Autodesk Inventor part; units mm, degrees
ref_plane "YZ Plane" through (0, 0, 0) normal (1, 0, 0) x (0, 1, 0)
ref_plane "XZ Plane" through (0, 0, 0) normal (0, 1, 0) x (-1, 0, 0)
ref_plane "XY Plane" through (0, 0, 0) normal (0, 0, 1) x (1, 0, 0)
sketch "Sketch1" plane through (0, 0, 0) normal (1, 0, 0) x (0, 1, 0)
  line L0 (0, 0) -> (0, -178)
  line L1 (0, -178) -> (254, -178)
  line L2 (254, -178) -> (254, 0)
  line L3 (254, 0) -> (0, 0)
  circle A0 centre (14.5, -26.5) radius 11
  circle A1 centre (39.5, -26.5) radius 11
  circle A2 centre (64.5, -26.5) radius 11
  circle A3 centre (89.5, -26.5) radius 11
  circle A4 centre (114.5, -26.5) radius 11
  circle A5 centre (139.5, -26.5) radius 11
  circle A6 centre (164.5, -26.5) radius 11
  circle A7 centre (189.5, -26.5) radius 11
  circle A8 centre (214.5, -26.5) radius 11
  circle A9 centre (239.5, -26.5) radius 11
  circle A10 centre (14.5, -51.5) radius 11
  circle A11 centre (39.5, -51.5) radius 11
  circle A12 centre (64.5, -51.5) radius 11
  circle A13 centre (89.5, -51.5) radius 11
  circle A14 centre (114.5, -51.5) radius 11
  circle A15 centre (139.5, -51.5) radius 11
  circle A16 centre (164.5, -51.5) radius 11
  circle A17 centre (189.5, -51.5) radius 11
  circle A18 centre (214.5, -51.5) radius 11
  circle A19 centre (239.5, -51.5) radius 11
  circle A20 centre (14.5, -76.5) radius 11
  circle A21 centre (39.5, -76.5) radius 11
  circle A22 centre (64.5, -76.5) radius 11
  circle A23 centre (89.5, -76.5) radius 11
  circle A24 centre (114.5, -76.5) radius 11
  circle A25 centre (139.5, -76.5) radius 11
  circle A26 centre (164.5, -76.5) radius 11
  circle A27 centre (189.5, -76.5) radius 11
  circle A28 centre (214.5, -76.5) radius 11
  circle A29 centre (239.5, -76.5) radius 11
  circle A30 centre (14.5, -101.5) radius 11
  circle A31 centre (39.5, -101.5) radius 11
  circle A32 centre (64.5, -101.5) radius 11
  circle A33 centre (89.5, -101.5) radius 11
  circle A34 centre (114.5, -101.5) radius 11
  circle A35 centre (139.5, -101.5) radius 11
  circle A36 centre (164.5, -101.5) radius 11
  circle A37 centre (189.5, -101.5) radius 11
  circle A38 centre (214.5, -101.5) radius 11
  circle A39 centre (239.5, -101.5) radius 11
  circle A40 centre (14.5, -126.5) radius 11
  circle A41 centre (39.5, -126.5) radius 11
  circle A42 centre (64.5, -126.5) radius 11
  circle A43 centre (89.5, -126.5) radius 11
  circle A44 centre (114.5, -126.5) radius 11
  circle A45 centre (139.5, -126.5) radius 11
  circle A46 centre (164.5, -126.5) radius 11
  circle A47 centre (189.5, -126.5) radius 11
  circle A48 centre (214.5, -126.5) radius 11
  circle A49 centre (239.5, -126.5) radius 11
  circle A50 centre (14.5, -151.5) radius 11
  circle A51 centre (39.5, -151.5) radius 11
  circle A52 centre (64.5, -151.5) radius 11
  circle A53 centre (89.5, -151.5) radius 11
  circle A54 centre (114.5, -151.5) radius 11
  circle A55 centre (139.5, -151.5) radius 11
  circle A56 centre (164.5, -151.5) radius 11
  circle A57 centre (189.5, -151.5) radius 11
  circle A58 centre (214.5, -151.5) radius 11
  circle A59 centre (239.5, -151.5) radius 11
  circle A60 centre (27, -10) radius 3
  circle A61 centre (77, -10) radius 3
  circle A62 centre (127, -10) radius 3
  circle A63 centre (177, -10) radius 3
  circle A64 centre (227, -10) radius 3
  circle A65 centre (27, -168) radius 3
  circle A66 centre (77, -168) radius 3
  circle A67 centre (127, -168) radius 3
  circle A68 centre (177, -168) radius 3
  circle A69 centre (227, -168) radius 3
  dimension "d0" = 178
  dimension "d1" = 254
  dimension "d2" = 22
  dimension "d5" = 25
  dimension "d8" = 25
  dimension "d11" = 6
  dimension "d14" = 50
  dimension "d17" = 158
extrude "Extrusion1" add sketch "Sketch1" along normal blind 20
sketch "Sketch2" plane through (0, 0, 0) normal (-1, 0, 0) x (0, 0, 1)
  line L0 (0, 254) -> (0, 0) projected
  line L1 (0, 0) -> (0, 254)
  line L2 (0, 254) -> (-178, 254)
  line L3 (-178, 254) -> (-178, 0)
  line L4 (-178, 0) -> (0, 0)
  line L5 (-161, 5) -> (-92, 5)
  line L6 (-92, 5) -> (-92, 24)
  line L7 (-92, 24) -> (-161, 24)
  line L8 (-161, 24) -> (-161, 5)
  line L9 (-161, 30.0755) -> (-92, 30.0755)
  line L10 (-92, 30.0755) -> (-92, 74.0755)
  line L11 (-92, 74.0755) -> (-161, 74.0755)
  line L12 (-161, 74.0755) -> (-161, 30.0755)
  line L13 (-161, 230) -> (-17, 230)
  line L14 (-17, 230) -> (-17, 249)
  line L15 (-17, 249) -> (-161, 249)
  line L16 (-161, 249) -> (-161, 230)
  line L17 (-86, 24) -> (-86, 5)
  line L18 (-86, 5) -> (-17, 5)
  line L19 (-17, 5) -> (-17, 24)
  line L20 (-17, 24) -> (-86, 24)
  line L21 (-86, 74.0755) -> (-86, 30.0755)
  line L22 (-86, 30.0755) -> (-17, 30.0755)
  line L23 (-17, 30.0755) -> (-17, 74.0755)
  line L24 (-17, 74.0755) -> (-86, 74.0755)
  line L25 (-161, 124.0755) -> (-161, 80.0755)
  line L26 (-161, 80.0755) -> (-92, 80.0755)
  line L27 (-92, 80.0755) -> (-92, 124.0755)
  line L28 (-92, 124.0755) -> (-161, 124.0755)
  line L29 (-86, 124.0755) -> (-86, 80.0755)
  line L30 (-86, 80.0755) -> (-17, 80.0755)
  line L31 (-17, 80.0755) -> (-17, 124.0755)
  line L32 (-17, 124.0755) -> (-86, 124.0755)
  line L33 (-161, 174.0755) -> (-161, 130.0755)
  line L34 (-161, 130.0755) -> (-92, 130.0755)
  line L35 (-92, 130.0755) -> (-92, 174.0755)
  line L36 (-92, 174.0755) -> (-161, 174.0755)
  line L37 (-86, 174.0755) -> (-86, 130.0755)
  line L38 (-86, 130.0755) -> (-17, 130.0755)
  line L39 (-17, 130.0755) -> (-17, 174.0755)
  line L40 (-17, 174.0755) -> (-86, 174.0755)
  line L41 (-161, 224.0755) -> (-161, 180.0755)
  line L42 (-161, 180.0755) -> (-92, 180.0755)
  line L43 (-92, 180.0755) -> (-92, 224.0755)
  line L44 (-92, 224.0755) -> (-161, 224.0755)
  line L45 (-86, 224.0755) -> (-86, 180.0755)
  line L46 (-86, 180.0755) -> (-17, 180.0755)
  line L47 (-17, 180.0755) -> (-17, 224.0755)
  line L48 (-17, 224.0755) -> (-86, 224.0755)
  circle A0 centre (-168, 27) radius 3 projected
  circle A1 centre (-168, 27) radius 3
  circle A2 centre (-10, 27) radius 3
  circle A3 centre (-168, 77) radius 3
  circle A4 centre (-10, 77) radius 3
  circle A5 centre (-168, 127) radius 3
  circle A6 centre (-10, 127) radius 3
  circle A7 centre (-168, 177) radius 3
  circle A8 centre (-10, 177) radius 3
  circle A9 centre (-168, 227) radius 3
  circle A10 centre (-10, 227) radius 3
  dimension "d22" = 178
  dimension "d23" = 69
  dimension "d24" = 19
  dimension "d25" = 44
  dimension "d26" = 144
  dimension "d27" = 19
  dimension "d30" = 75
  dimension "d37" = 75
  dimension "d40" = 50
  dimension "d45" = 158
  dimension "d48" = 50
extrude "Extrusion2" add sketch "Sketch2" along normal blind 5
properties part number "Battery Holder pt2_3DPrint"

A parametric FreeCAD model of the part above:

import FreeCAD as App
import Part
import Sketcher

V = App.Vector


def add_polygon(sketch, points):
    """Adds a closed chain of lines whose ends are joined by coincident constraints."""
    first, n = sketch.GeometryCount, len(points)
    for a, b in zip(points, points[1:] + points[:1]):
        sketch.addGeometry(Part.LineSegment(App.Vector(*a, 0), App.Vector(*b, 0)), False)
    for i in range(n):
        sketch.addConstraint(Sketcher.Constraint("Coincident", first + i, 2, first + (i + 1) % n, 1))

doc = App.newDocument("Part")
body = doc.addObject("PartDesign::Body", "Body")

# Sketch on YZ plane
sketch1 = doc.addObject("Sketcher::SketchObject", "Sketch")
body.addObject(sketch1)
sketch1.AttachmentSupport = (doc.YZ_Plane, [""])
sketch1.MapMode = "FlatFace"
add_polygon(sketch1, [(254, 0), (0, 0), (0, -178), (254, -178)])  # lines 0-3
sketch1.addGeometry(Part.Circle(V(27, -168, 0), V(0, 0, 1), 3), False)  # 4
sketch1.addGeometry(Part.Circle(V(14.5, -151.5, 0), V(0, 0, 1), 11), False)  # 5
sketch1.addGeometry(Part.Circle(V(39.5, -151.5, 0), V(0, 0, 1), 11), False)  # 6
sketch1.addGeometry(Part.Circle(V(77, -168, 0), V(0, 0, 1), 3), False)  # 7
sketch1.addGeometry(Part.Circle(V(64.5, -151.5, 0), V(0, 0, 1), 11), False)  # 8
sketch1.addGeometry(Part.Circle(V(89.5, -151.5, 0), V(0, 0, 1), 11), False)  # 9
sketch1.addGeometry(Part.Circle(V(114.5, -151.5, 0), V(0, 0, 1), 11), False)  # 10
sketch1.addGeometry(Part.Circle(V(14.5, -126.5, 0), V(0, 0, 1), 11), False)  # 11
sketch1.addGeometry(Part.Circle(V(39.5, -126.5, 0), V(0, 0, 1), 11), False)  # 12
sketch1.addGeometry(Part.Circle(V(14.5, -101.5, 0), V(0, 0, 1), 11), False)  # 13
sketch1.addGeometry(Part.Circle(V(39.5, -101.5, 0), V(0, 0, 1), 11), False)  # 14
sketch1.addGeometry(Part.Circle(V(64.5, -126.5, 0), V(0, 0, 1), 11), False)  # 15
sketch1.addGeometry(Part.Circle(V(89.5, -126.5, 0), V(0, 0, 1), 11), False)  # 16
sketch1.addGeometry(Part.Circle(V(114.5, -126.5, 0), V(0, 0, 1), 11), False)  # 17
sketch1.addGeometry(Part.Circle(V(64.5, -101.5, 0), V(0, 0, 1), 11), False)  # 18
sketch1.addGeometry(Part.Circle(V(89.5, -101.5, 0), V(0, 0, 1), 11), False)  # 19
sketch1.addGeometry(Part.Circle(V(114.5, -101.5, 0), V(0, 0, 1), 11), False)  # 20
sketch1.addGeometry(Part.Circle(V(127, -168, 0), V(0, 0, 1), 3), False)  # 21
sketch1.addGeometry(Part.Circle(V(177, -168, 0), V(0, 0, 1), 3), False)  # 22
sketch1.addGeometry(Part.Circle(V(139.5, -151.5, 0), V(0, 0, 1), 11), False)  # 23
sketch1.addGeometry(Part.Circle(V(164.5, -151.5, 0), V(0, 0, 1), 11), False)  # 24
sketch1.addGeometry(Part.Circle(V(189.5, -151.5, 0), V(0, 0, 1), 11), False)  # 25
sketch1.addGeometry(Part.Circle(V(227, -168, 0), V(0, 0, 1), 3), False)  # 26
sketch1.addGeometry(Part.Circle(V(214.5, -151.5, 0), V(0, 0, 1), 11), False)  # 27
sketch1.addGeometry(Part.Circle(V(239.5, -151.5, 0), V(0, 0, 1), 11), False)  # 28
sketch1.addGeometry(Part.Circle(V(139.5, -126.5, 0), V(0, 0, 1), 11), False)  # 29
sketch1.addGeometry(Part.Circle(V(164.5, -126.5, 0), V(0, 0, 1), 11), False)  # 30
sketch1.addGeometry(Part.Circle(V(189.5, -126.5, 0), V(0, 0, 1), 11), False)  # 31
sketch1.addGeometry(Part.Circle(V(139.5, -101.5, 0), V(0, 0, 1), 11), False)  # 32
sketch1.addGeometry(Part.Circle(V(164.5, -101.5, 0), V(0, 0, 1), 11), False)  # 33
sketch1.addGeometry(Part.Circle(V(189.5, -101.5, 0), V(0, 0, 1), 11), False)  # 34
sketch1.addGeometry(Part.Circle(V(214.5, -126.5, 0), V(0, 0, 1), 11), False)  # 35
sketch1.addGeometry(Part.Circle(V(239.5, -126.5, 0), V(0, 0, 1), 11), False)  # 36
sketch1.addGeometry(Part.Circle(V(214.5, -101.5, 0), V(0, 0, 1), 11), False)  # 37
sketch1.addGeometry(Part.Circle(V(239.5, -101.5, 0), V(0, 0, 1), 11), False)  # 38
sketch1.addGeometry(Part.Circle(V(14.5, -76.5, 0), V(0, 0, 1), 11), False)  # 39
sketch1.addGeometry(Part.Circle(V(39.5, -76.5, 0), V(0, 0, 1), 11), False)  # 40
sketch1.addGeometry(Part.Circle(V(14.5, -51.5, 0), V(0, 0, 1), 11), False)  # 41
sketch1.addGeometry(Part.Circle(V(39.5, -51.5, 0), V(0, 0, 1), 11), False)  # 42
sketch1.addGeometry(Part.Circle(V(64.5, -76.5, 0), V(0, 0, 1), 11), False)  # 43
sketch1.addGeometry(Part.Circle(V(89.5, -76.5, 0), V(0, 0, 1), 11), False)  # 44
sketch1.addGeometry(Part.Circle(V(114.5, -76.5, 0), V(0, 0, 1), 11), False)  # 45
sketch1.addGeometry(Part.Circle(V(64.5, -51.5, 0), V(0, 0, 1), 11), False)  # 46
sketch1.addGeometry(Part.Circle(V(89.5, -51.5, 0), V(0, 0, 1), 11), False)  # 47
sketch1.addGeometry(Part.Circle(V(114.5, -51.5, 0), V(0, 0, 1), 11), False)  # 48
sketch1.addGeometry(Part.Circle(V(14.5, -26.5, 0), V(0, 0, 1), 11), False)  # 49
sketch1.addGeometry(Part.Circle(V(39.5, -26.5, 0), V(0, 0, 1), 11), False)  # 50
sketch1.addGeometry(Part.Circle(V(27, -10, 0), V(0, 0, 1), 3), False)  # 51
sketch1.addGeometry(Part.Circle(V(64.5, -26.5, 0), V(0, 0, 1), 11), False)  # 52
sketch1.addGeometry(Part.Circle(V(89.5, -26.5, 0), V(0, 0, 1), 11), False)  # 53
sketch1.addGeometry(Part.Circle(V(114.5, -26.5, 0), V(0, 0, 1), 11), False)  # 54
sketch1.addGeometry(Part.Circle(V(77, -10, 0), V(0, 0, 1), 3), False)  # 55
sketch1.addGeometry(Part.Circle(V(139.5, -76.5, 0), V(0, 0, 1), 11), False)  # 56
sketch1.addGeometry(Part.Circle(V(164.5, -76.5, 0), V(0, 0, 1), 11), False)  # 57
sketch1.addGeometry(Part.Circle(V(189.5, -76.5, 0), V(0, 0, 1), 11), False)  # 58
sketch1.addGeometry(Part.Circle(V(139.5, -51.5, 0), V(0, 0, 1), 11), False)  # 59
sketch1.addGeometry(Part.Circle(V(164.5, -51.5, 0), V(0, 0, 1), 11), False)  # 60
sketch1.addGeometry(Part.Circle(V(189.5, -51.5, 0), V(0, 0, 1), 11), False)  # 61
sketch1.addGeometry(Part.Circle(V(214.5, -76.5, 0), V(0, 0, 1), 11), False)  # 62
sketch1.addGeometry(Part.Circle(V(239.5, -76.5, 0), V(0, 0, 1), 11), False)  # 63
sketch1.addGeometry(Part.Circle(V(214.5, -51.5, 0), V(0, 0, 1), 11), False)  # 64
sketch1.addGeometry(Part.Circle(V(239.5, -51.5, 0), V(0, 0, 1), 11), False)  # 65
sketch1.addGeometry(Part.Circle(V(139.5, -26.5, 0), V(0, 0, 1), 11), False)  # 66
sketch1.addGeometry(Part.Circle(V(164.5, -26.5, 0), V(0, 0, 1), 11), False)  # 67
sketch1.addGeometry(Part.Circle(V(189.5, -26.5, 0), V(0, 0, 1), 11), False)  # 68
sketch1.addGeometry(Part.Circle(V(127, -10, 0), V(0, 0, 1), 3), False)  # 69
sketch1.addGeometry(Part.Circle(V(177, -10, 0), V(0, 0, 1), 3), False)  # 70
sketch1.addGeometry(Part.Circle(V(214.5, -26.5, 0), V(0, 0, 1), 11), False)  # 71
sketch1.addGeometry(Part.Circle(V(239.5, -26.5, 0), V(0, 0, 1), 11), False)  # 72
sketch1.addGeometry(Part.Circle(V(227, -10, 0), V(0, 0, 1), 3), False)  # 73
sketch1.addConstraint(Sketcher.Constraint("Horizontal", 0))
sketch1.addConstraint(Sketcher.Constraint("Vertical", 1))
sketch1.addConstraint(Sketcher.Constraint("Horizontal", 2))
sketch1.addConstraint(Sketcher.Constraint("Vertical", 3))
sketch1.addConstraint(Sketcher.Constraint("Coincident", 0, 2, -1, 1))
sketch1.addConstraint(Sketcher.Constraint("Equal", 5, 6))
sketch1.addConstraint(Sketcher.Constraint("Equal", 4, 7))
sketch1.addConstraint(Sketcher.Constraint("Equal", 6, 8))
sketch1.addConstraint(Sketcher.Constraint("Equal", 8, 9))
sketch1.addConstraint(Sketcher.Constraint("Equal", 9, 10))
sketch1.addConstraint(Sketcher.Constraint("Equal", 10, 11))
sketch1.addConstraint(Sketcher.Constraint("Equal", 11, 12))
sketch1.addConstraint(Sketcher.Constraint("Equal", 12, 13))
sketch1.addConstraint(Sketcher.Constraint("Equal", 13, 14))
sketch1.addConstraint(Sketcher.Constraint("Equal", 14, 15))
sketch1.addConstraint(Sketcher.Constraint("Equal", 15, 16))
sketch1.addConstraint(Sketcher.Constraint("Equal", 16, 17))
sketch1.addConstraint(Sketcher.Constraint("Equal", 17, 18))
sketch1.addConstraint(Sketcher.Constraint("Equal", 18, 19))
sketch1.addConstraint(Sketcher.Constraint("Equal", 19, 20))
sketch1.addConstraint(Sketcher.Constraint("Equal", 7, 21))
sketch1.addConstraint(Sketcher.Constraint("Equal", 21, 22))
sketch1.addConstraint(Sketcher.Constraint("Equal", 20, 23))
sketch1.addConstraint(Sketcher.Constraint("Equal", 23, 24))
sketch1.addConstraint(Sketcher.Constraint("Equal", 24, 25))
sketch1.addConstraint(Sketcher.Constraint("Equal", 22, 26))
sketch1.addConstraint(Sketcher.Constraint("Equal", 25, 27))
sketch1.addConstraint(Sketcher.Constraint("Equal", 27, 28))
sketch1.addConstraint(Sketcher.Constraint("Equal", 28, 29))
sketch1.addConstraint(Sketcher.Constraint("Equal", 29, 30))
sketch1.addConstraint(Sketcher.Constraint("Equal", 30, 31))
sketch1.addConstraint(Sketcher.Constraint("Equal", 31, 32))
sketch1.addConstraint(Sketcher.Constraint("Equal", 32, 33))
sketch1.addConstraint(Sketcher.Constraint("Equal", 33, 34))
sketch1.addConstraint(Sketcher.Constraint("Equal", 34, 35))
sketch1.addConstraint(Sketcher.Constraint("Equal", 35, 36))
sketch1.addConstraint(Sketcher.Constraint("Equal", 36, 37))
sketch1.addConstraint(Sketcher.Constraint("Equal", 37, 38))
sketch1.addConstraint(Sketcher.Constraint("Equal", 38, 39))
sketch1.addConstraint(Sketcher.Constraint("Equal", 39, 40))
sketch1.addConstraint(Sketcher.Constraint("Equal", 40, 41))
sketch1.addConstraint(Sketcher.Constraint("Equal", 41, 42))
sketch1.addConstraint(Sketcher.Constraint("Equal", 42, 43))
sketch1.addConstraint(Sketcher.Constraint("Equal", 43, 44))
sketch1.addConstraint(Sketcher.Constraint("Equal", 44, 45))
sketch1.addConstraint(Sketcher.Constraint("Equal", 45, 46))
sketch1.addConstraint(Sketcher.Constraint("Equal", 46, 47))
sketch1.addConstraint(Sketcher.Constraint("Equal", 47, 48))
sketch1.addConstraint(Sketcher.Constraint("Equal", 48, 49))
sketch1.addConstraint(Sketcher.Constraint("Equal", 49, 50))
sketch1.addConstraint(Sketcher.Constraint("Equal", 26, 51))
sketch1.addConstraint(Sketcher.Constraint("Equal", 50, 52))
sketch1.addConstraint(Sketcher.Constraint("Equal", 52, 53))
sketch1.addConstraint(Sketcher.Constraint("Equal", 53, 54))
sketch1.addConstraint(Sketcher.Constraint("Equal", 51, 55))
sketch1.addConstraint(Sketcher.Constraint("Equal", 54, 56))
sketch1.addConstraint(Sketcher.Constraint("Equal", 56, 57))
sketch1.addConstraint(Sketcher.Constraint("Equal", 57, 58))
sketch1.addConstraint(Sketcher.Constraint("Equal", 58, 59))
sketch1.addConstraint(Sketcher.Constraint("Equal", 59, 60))
sketch1.addConstraint(Sketcher.Constraint("Equal", 60, 61))
sketch1.addConstraint(Sketcher.Constraint("Equal", 61, 62))
sketch1.addConstraint(Sketcher.Constraint("Equal", 62, 63))
sketch1.addConstraint(Sketcher.Constraint("Equal", 63, 64))
sketch1.addConstraint(Sketcher.Constraint("Equal", 64, 65))
sketch1.addConstraint(Sketcher.Constraint("Equal", 65, 66))
sketch1.addConstraint(Sketcher.Constraint("Equal", 66, 67))
sketch1.addConstraint(Sketcher.Constraint("Equal", 67, 68))
sketch1.addConstraint(Sketcher.Constraint("Equal", 55, 69))
sketch1.addConstraint(Sketcher.Constraint("Equal", 69, 70))
sketch1.addConstraint(Sketcher.Constraint("Equal", 68, 71))
sketch1.addConstraint(Sketcher.Constraint("Equal", 71, 72))
sketch1.addConstraint(Sketcher.Constraint("Equal", 70, 73))
sketch1.addConstraint(Sketcher.Constraint("Horizontal", 5, 3, 6, 3))
sketch1.addConstraint(Sketcher.Constraint("Horizontal", 4, 3, 7, 3))
sketch1.addConstraint(Sketcher.Constraint("Horizontal", 6, 3, 8, 3))
sketch1.addConstraint(Sketcher.Constraint("Horizontal", 8, 3, 9, 3))
sketch1.addConstraint(Sketcher.Constraint("Horizontal", 9, 3, 10, 3))
sketch1.addConstraint(Sketcher.Constraint("Horizontal", 11, 3, 12, 3))
sketch1.addConstraint(Sketcher.Constraint("Horizontal", 13, 3, 14, 3))
sketch1.addConstraint(Sketcher.Constraint("Horizontal", 12, 3, 15, 3))
sketch1.addConstraint(Sketcher.Constraint("Horizontal", 15, 3, 16, 3))
sketch1.addConstraint(Sketcher.Constraint("Horizontal", 16, 3, 17, 3))
sketch1.addConstraint(Sketcher.Constraint("Horizontal", 14, 3, 18, 3))
sketch1.addConstraint(Sketcher.Constraint("Horizontal", 18, 3, 19, 3))
sketch1.addConstraint(Sketcher.Constraint("Horizontal", 19, 3, 20, 3))
sketch1.addConstraint(Sketcher.Constraint("Horizontal", 7, 3, 21, 3))
sketch1.addConstraint(Sketcher.Constraint("Horizontal", 21, 3, 22, 3))
sketch1.addConstraint(Sketcher.Constraint("Horizontal", 10, 3, 23, 3))
sketch1.addConstraint(Sketcher.Constraint("Horizontal", 23, 3, 24, 3))
sketch1.addConstraint(Sketcher.Constraint("Horizontal", 24, 3, 25, 3))
sketch1.addConstraint(Sketcher.Constraint("Horizontal", 22, 3, 26, 3))
sketch1.addConstraint(Sketcher.Constraint("Horizontal", 25, 3, 27, 3))
sketch1.addConstraint(Sketcher.Constraint("Horizontal", 27, 3, 28, 3))
sketch1.addConstraint(Sketcher.Constraint("Horizontal", 17, 3, 29, 3))
sketch1.addConstraint(Sketcher.Constraint("Horizontal", 29, 3, 30, 3))
sketch1.addConstraint(Sketcher.Constraint("Horizontal", 30, 3, 31, 3))
sketch1.addConstraint(Sketcher.Constraint("Horizontal", 20, 3, 32, 3))
sketch1.addConstraint(Sketcher.Constraint("Horizontal", 32, 3, 33, 3))
sketch1.addConstraint(Sketcher.Constraint("Horizontal", 33, 3, 34, 3))
sketch1.addConstraint(Sketcher.Constraint("Horizontal", 31, 3, 35, 3))
sketch1.addConstraint(Sketcher.Constraint("Horizontal", 35, 3, 36, 3))
sketch1.addConstraint(Sketcher.Constraint("Horizontal", 34, 3, 37, 3))
sketch1.addConstraint(Sketcher.Constraint("Horizontal", 37, 3, 38, 3))
sketch1.addConstraint(Sketcher.Constraint("Horizontal", 39, 3, 40, 3))
sketch1.addConstraint(Sketcher.Constraint("Horizontal", 41, 3, 42, 3))
sketch1.addConstraint(Sketcher.Constraint("Horizontal", 40, 3, 43, 3))
sketch1.addConstraint(Sketcher.Constraint("Horizontal", 43, 3, 44, 3))
sketch1.addConstraint(Sketcher.Constraint("Horizontal", 44, 3, 45, 3))
sketch1.addConstraint(Sketcher.Constraint("Horizontal", 42, 3, 46, 3))
sketch1.addConstraint(Sketcher.Constraint("Horizontal", 46, 3, 47, 3))
sketch1.addConstraint(Sketcher.Constraint("Horizontal", 47, 3, 48, 3))
sketch1.addConstraint(Sketcher.Constraint("Horizontal", 49, 3, 50, 3))
sketch1.addConstraint(Sketcher.Constraint("Horizontal", 50, 3, 52, 3))
sketch1.addConstraint(Sketcher.Constraint("Horizontal", 52, 3, 53, 3))
sketch1.addConstraint(Sketcher.Constraint("Horizontal", 53, 3, 54, 3))
sketch1.addConstraint(Sketcher.Constraint("Horizontal", 51, 3, 55, 3))
sketch1.addConstraint(Sketcher.Constraint("Horizontal", 45, 3, 56, 3))
sketch1.addConstraint(Sketcher.Constraint("Horizontal", 56, 3, 57, 3))
sketch1.addConstraint(Sketcher.Constraint("Horizontal", 57, 3, 58, 3))
sketch1.addConstraint(Sketcher.Constraint("Horizontal", 48, 3, 59, 3))
sketch1.addConstraint(Sketcher.Constraint("Horizontal", 59, 3, 60, 3))
sketch1.addConstraint(Sketcher.Constraint("Horizontal", 60, 3, 61, 3))
sketch1.addConstraint(Sketcher.Constraint("Horizontal", 58, 3, 62, 3))
sketch1.addConstraint(Sketcher.Constraint("Horizontal", 62, 3, 63, 3))
sketch1.addConstraint(Sketcher.Constraint("Horizontal", 61, 3, 64, 3))
sketch1.addConstraint(Sketcher.Constraint("Horizontal", 64, 3, 65, 3))
sketch1.addConstraint(Sketcher.Constraint("Horizontal", 54, 3, 66, 3))
sketch1.addConstraint(Sketcher.Constraint("Horizontal", 66, 3, 67, 3))
sketch1.addConstraint(Sketcher.Constraint("Horizontal", 67, 3, 68, 3))
sketch1.addConstraint(Sketcher.Constraint("Horizontal", 55, 3, 69, 3))
sketch1.addConstraint(Sketcher.Constraint("Horizontal", 69, 3, 70, 3))
sketch1.addConstraint(Sketcher.Constraint("Horizontal", 68, 3, 71, 3))
sketch1.addConstraint(Sketcher.Constraint("Horizontal", 71, 3, 72, 3))
sketch1.addConstraint(Sketcher.Constraint("Horizontal", 70, 3, 73, 3))
sketch1.addConstraint(Sketcher.Constraint("Vertical", 5, 3, 11, 3))
sketch1.addConstraint(Sketcher.Constraint("Vertical", 6, 3, 12, 3))
sketch1.addConstraint(Sketcher.Constraint("Vertical", 11, 3, 13, 3))
sketch1.addConstraint(Sketcher.Constraint("Vertical", 12, 3, 14, 3))
sketch1.addConstraint(Sketcher.Constraint("Vertical", 8, 3, 15, 3))
sketch1.addConstraint(Sketcher.Constraint("Vertical", 9, 3, 16, 3))
sketch1.addConstraint(Sketcher.Constraint("Vertical", 10, 3, 17, 3))
sketch1.addConstraint(Sketcher.Constraint("Vertical", 15, 3, 18, 3))
sketch1.addConstraint(Sketcher.Constraint("Vertical", 16, 3, 19, 3))
sketch1.addConstraint(Sketcher.Constraint("Vertical", 17, 3, 20, 3))
sketch1.addConstraint(Sketcher.Constraint("Vertical", 23, 3, 29, 3))
sketch1.addConstraint(Sketcher.Constraint("Vertical", 24, 3, 30, 3))
sketch1.addConstraint(Sketcher.Constraint("Vertical", 25, 3, 31, 3))
sketch1.addConstraint(Sketcher.Constraint("Vertical", 29, 3, 32, 3))
sketch1.addConstraint(Sketcher.Constraint("Vertical", 30, 3, 33, 3))
sketch1.addConstraint(Sketcher.Constraint("Vertical", 31, 3, 34, 3))
sketch1.addConstraint(Sketcher.Constraint("Vertical", 27, 3, 35, 3))
sketch1.addConstraint(Sketcher.Constraint("Vertical", 28, 3, 36, 3))
sketch1.addConstraint(Sketcher.Constraint("Vertical", 35, 3, 37, 3))
sketch1.addConstraint(Sketcher.Constraint("Vertical", 36, 3, 38, 3))
sketch1.addConstraint(Sketcher.Constraint("Vertical", 13, 3, 39, 3))
sketch1.addConstraint(Sketcher.Constraint("Vertical", 14, 3, 40, 3))
sketch1.addConstraint(Sketcher.Constraint("Vertical", 39, 3, 41, 3))
sketch1.addConstraint(Sketcher.Constraint("Vertical", 40, 3, 42, 3))
sketch1.addConstraint(Sketcher.Constraint("Vertical", 18, 3, 43, 3))
sketch1.addConstraint(Sketcher.Constraint("Vertical", 19, 3, 44, 3))
sketch1.addConstraint(Sketcher.Constraint("Vertical", 20, 3, 45, 3))
sketch1.addConstraint(Sketcher.Constraint("Vertical", 43, 3, 46, 3))
sketch1.addConstraint(Sketcher.Constraint("Vertical", 44, 3, 47, 3))
sketch1.addConstraint(Sketcher.Constraint("Vertical", 45, 3, 48, 3))
sketch1.addConstraint(Sketcher.Constraint("Vertical", 41, 3, 49, 3))
sketch1.addConstraint(Sketcher.Constraint("Vertical", 42, 3, 50, 3))
sketch1.addConstraint(Sketcher.Constraint("Vertical", 4, 3, 51, 3))
sketch1.addConstraint(Sketcher.Constraint("Vertical", 46, 3, 52, 3))
sketch1.addConstraint(Sketcher.Constraint("Vertical", 47, 3, 53, 3))
sketch1.addConstraint(Sketcher.Constraint("Vertical", 48, 3, 54, 3))
sketch1.addConstraint(Sketcher.Constraint("Vertical", 7, 3, 55, 3))
sketch1.addConstraint(Sketcher.Constraint("Vertical", 32, 3, 56, 3))
sketch1.addConstraint(Sketcher.Constraint("Vertical", 33, 3, 57, 3))
sketch1.addConstraint(Sketcher.Constraint("Vertical", 34, 3, 58, 3))
sketch1.addConstraint(Sketcher.Constraint("Vertical", 56, 3, 59, 3))
sketch1.addConstraint(Sketcher.Constraint("Vertical", 57, 3, 60, 3))
sketch1.addConstraint(Sketcher.Constraint("Vertical", 58, 3, 61, 3))
sketch1.addConstraint(Sketcher.Constraint("Vertical", 37, 3, 62, 3))
sketch1.addConstraint(Sketcher.Constraint("Vertical", 38, 3, 63, 3))
sketch1.addConstraint(Sketcher.Constraint("Vertical", 62, 3, 64, 3))
sketch1.addConstraint(Sketcher.Constraint("Vertical", 63, 3, 65, 3))
sketch1.addConstraint(Sketcher.Constraint("Vertical", 59, 3, 66, 3))
sketch1.addConstraint(Sketcher.Constraint("Vertical", 60, 3, 67, 3))
sketch1.addConstraint(Sketcher.Constraint("Vertical", 61, 3, 68, 3))
sketch1.addConstraint(Sketcher.Constraint("Vertical", 21, 3, 69, 3))
sketch1.addConstraint(Sketcher.Constraint("Vertical", 22, 3, 70, 3))
sketch1.addConstraint(Sketcher.Constraint("Vertical", 64, 3, 71, 3))
sketch1.addConstraint(Sketcher.Constraint("Vertical", 65, 3, 72, 3))
sketch1.addConstraint(Sketcher.Constraint("Vertical", 26, 3, 73, 3))
sketch1.addConstraint(Sketcher.Constraint("Diameter", 4, 6.0))
sketch1.addConstraint(Sketcher.Constraint("Diameter", 5, 22.0))
sketch1.addConstraint(Sketcher.Constraint("DistanceX", 0, 2, 0, 1, 254.0))
sketch1.addConstraint(Sketcher.Constraint("DistanceY", 1, 2, 1, 1, 178.0))
sketch1.addConstraint(Sketcher.Constraint("DistanceX", -1, 1, 4, 3, 27.0))
sketch1.addConstraint(Sketcher.Constraint("DistanceY", 4, 3, -1, 1, 168.0))
sketch1.addConstraint(Sketcher.Constraint("DistanceX", -1, 1, 7, 3, 77.0))
sketch1.addConstraint(Sketcher.Constraint("DistanceX", -1, 1, 21, 3, 127.0))
sketch1.addConstraint(Sketcher.Constraint("DistanceX", -1, 1, 22, 3, 177.0))
sketch1.addConstraint(Sketcher.Constraint("DistanceX", -1, 1, 26, 3, 227.0))
sketch1.addConstraint(Sketcher.Constraint("DistanceY", 51, 3, -1, 1, 10.0))
sketch1.addConstraint(Sketcher.Constraint("DistanceX", -1, 1, 5, 3, 14.5))
sketch1.addConstraint(Sketcher.Constraint("DistanceY", 5, 3, -1, 1, 151.5))
sketch1.addConstraint(Sketcher.Constraint("DistanceX", -1, 1, 6, 3, 39.5))
sketch1.addConstraint(Sketcher.Constraint("DistanceX", -1, 1, 8, 3, 64.5))
sketch1.addConstraint(Sketcher.Constraint("DistanceX", -1, 1, 9, 3, 89.5))
sketch1.addConstraint(Sketcher.Constraint("DistanceX", -1, 1, 10, 3, 114.5))
sketch1.addConstraint(Sketcher.Constraint("DistanceY", 11, 3, -1, 1, 126.5))
sketch1.addConstraint(Sketcher.Constraint("DistanceY", 13, 3, -1, 1, 101.5))
sketch1.addConstraint(Sketcher.Constraint("DistanceX", -1, 1, 23, 3, 139.5))
sketch1.addConstraint(Sketcher.Constraint("DistanceX", -1, 1, 24, 3, 164.5))
sketch1.addConstraint(Sketcher.Constraint("DistanceX", -1, 1, 25, 3, 189.5))
sketch1.addConstraint(Sketcher.Constraint("DistanceX", -1, 1, 27, 3, 214.5))
sketch1.addConstraint(Sketcher.Constraint("DistanceX", -1, 1, 28, 3, 239.5))
sketch1.addConstraint(Sketcher.Constraint("DistanceY", 39, 3, -1, 1, 76.5))
sketch1.addConstraint(Sketcher.Constraint("DistanceY", 41, 3, -1, 1, 51.5))
sketch1.addConstraint(Sketcher.Constraint("DistanceY", 49, 3, -1, 1, 26.5))
pad1 = doc.addObject("PartDesign::Pad", "Pad")
body.addObject(pad1)
pad1.Profile = sketch1
pad1.Length = 20

# Sketch on YZ plane
sketch2 = doc.addObject("Sketcher::SketchObject", "Sketch001")
body.addObject(sketch2)
sketch2.AttachmentSupport = (doc.YZ_Plane, [""])
sketch2.MapMode = "FlatFace"
add_polygon(sketch2, [(0, 0), (254, 0), (254, -178), (0, -178)])  # lines 0-3
sketch2.addGeometry(Part.Circle(V(27, -168, 0), V(0, 0, 1), 3), False)  # 4
add_polygon(sketch2, [(5, -92), (5, -161), (24, -161), (24, -92)])  # lines 5-8
add_polygon(sketch2, [(30.1, -92), (30.1, -161), (74.1, -161), (74.1, -92)])  # lines 9-12
sketch2.addGeometry(Part.Circle(V(77, -168, 0), V(0, 0, 1), 3), False)  # 13
add_polygon(sketch2, [(80.1, -161), (124.1, -161), (124.1, -92), (80.1, -92)])  # lines 14-17
add_polygon(sketch2, [(5, -86), (24, -86), (24, -17), (5, -17)])  # lines 18-21
add_polygon(sketch2, [(30.1, -86), (74.1, -86), (74.1, -17), (30.1, -17)])  # lines 22-25
sketch2.addGeometry(Part.Circle(V(27, -10, 0), V(0, 0, 1), 3), False)  # 26
add_polygon(sketch2, [(80.1, -86), (124.1, -86), (124.1, -17), (80.1, -17)])  # lines 27-30
sketch2.addGeometry(Part.Circle(V(77, -10, 0), V(0, 0, 1), 3), False)  # 31
sketch2.addGeometry(Part.Circle(V(127, -168, 0), V(0, 0, 1), 3), False)  # 32
sketch2.addGeometry(Part.Circle(V(177, -168, 0), V(0, 0, 1), 3), False)  # 33
add_polygon(sketch2, [(130.1, -161), (174.1, -161), (174.1, -92), (130.1, -92)])  # lines 34-37
sketch2.addGeometry(Part.Circle(V(227, -168, 0), V(0, 0, 1), 3), False)  # 38
add_polygon(sketch2, [(180.1, -161), (224.1, -161), (224.1, -92), (180.1, -92)])  # lines 39-42
add_polygon(sketch2, [(130.1, -86), (174.1, -86), (174.1, -17), (130.1, -17)])  # lines 43-46
sketch2.addGeometry(Part.Circle(V(127, -10, 0), V(0, 0, 1), 3), False)  # 47
sketch2.addGeometry(Part.Circle(V(177, -10, 0), V(0, 0, 1), 3), False)  # 48
add_polygon(sketch2, [(180.1, -86), (224.1, -86), (224.1, -17), (180.1, -17)])  # lines 49-52
add_polygon(sketch2, [(230, -17), (230, -161), (249, -161), (249, -17)])  # lines 53-56
sketch2.addGeometry(Part.Circle(V(227, -10, 0), V(0, 0, 1), 3), False)  # 57
sketch2.addConstraint(Sketcher.Constraint("Horizontal", 0))
sketch2.addConstraint(Sketcher.Constraint("Vertical", 1))
sketch2.addConstraint(Sketcher.Constraint("Horizontal", 2))
sketch2.addConstraint(Sketcher.Constraint("Vertical", 3))
sketch2.addConstraint(Sketcher.Constraint("Vertical", 5))
sketch2.addConstraint(Sketcher.Constraint("Horizontal", 6))
sketch2.addConstraint(Sketcher.Constraint("Vertical", 7))
sketch2.addConstraint(Sketcher.Constraint("Horizontal", 8))
sketch2.addConstraint(Sketcher.Constraint("Vertical", 9))
sketch2.addConstraint(Sketcher.Constraint("Horizontal", 10))
sketch2.addConstraint(Sketcher.Constraint("Vertical", 11))
sketch2.addConstraint(Sketcher.Constraint("Horizontal", 12))
sketch2.addConstraint(Sketcher.Constraint("Horizontal", 14))
sketch2.addConstraint(Sketcher.Constraint("Vertical", 15))
sketch2.addConstraint(Sketcher.Constraint("Horizontal", 16))
sketch2.addConstraint(Sketcher.Constraint("Vertical", 17))
sketch2.addConstraint(Sketcher.Constraint("Horizontal", 18))
sketch2.addConstraint(Sketcher.Constraint("Vertical", 19))
sketch2.addConstraint(Sketcher.Constraint("Horizontal", 20))
sketch2.addConstraint(Sketcher.Constraint("Vertical", 21))
sketch2.addConstraint(Sketcher.Constraint("Horizontal", 22))
sketch2.addConstraint(Sketcher.Constraint("Vertical", 23))
sketch2.addConstraint(Sketcher.Constraint("Horizontal", 24))
sketch2.addConstraint(Sketcher.Constraint("Vertical", 25))
sketch2.addConstraint(Sketcher.Constraint("Horizontal", 27))
sketch2.addConstraint(Sketcher.Constraint("Vertical", 28))
sketch2.addConstraint(Sketcher.Constraint("Horizontal", 29))
sketch2.addConstraint(Sketcher.Constraint("Vertical", 30))
sketch2.addConstraint(Sketcher.Constraint("Horizontal", 34))
sketch2.addConstraint(Sketcher.Constraint("Vertical", 35))
sketch2.addConstraint(Sketcher.Constraint("Horizontal", 36))
sketch2.addConstraint(Sketcher.Constraint("Vertical", 37))
sketch2.addConstraint(Sketcher.Constraint("Horizontal", 39))
sketch2.addConstraint(Sketcher.Constraint("Vertical", 40))
sketch2.addConstraint(Sketcher.Constraint("Horizontal", 41))
sketch2.addConstraint(Sketcher.Constraint("Vertical", 42))
sketch2.addConstraint(Sketcher.Constraint("Horizontal", 43))
sketch2.addConstraint(Sketcher.Constraint("Vertical", 44))
sketch2.addConstraint(Sketcher.Constraint("Horizontal", 45))
sketch2.addConstraint(Sketcher.Constraint("Vertical", 46))
sketch2.addConstraint(Sketcher.Constraint("Horizontal", 49))
sketch2.addConstraint(Sketcher.Constraint("Vertical", 50))
sketch2.addConstraint(Sketcher.Constraint("Horizontal", 51))
sketch2.addConstraint(Sketcher.Constraint("Vertical", 52))
sketch2.addConstraint(Sketcher.Constraint("Vertical", 53))
sketch2.addConstraint(Sketcher.Constraint("Horizontal", 54))
sketch2.addConstraint(Sketcher.Constraint("Vertical", 55))
sketch2.addConstraint(Sketcher.Constraint("Horizontal", 56))
sketch2.addConstraint(Sketcher.Constraint("Coincident", 3, 2, -1, 1))
sketch2.addConstraint(Sketcher.Constraint("Equal", 4, 13))
sketch2.addConstraint(Sketcher.Constraint("Equal", 13, 26))
sketch2.addConstraint(Sketcher.Constraint("Equal", 26, 31))
sketch2.addConstraint(Sketcher.Constraint("Equal", 31, 32))
sketch2.addConstraint(Sketcher.Constraint("Equal", 32, 33))
sketch2.addConstraint(Sketcher.Constraint("Equal", 33, 38))
sketch2.addConstraint(Sketcher.Constraint("Equal", 38, 47))
sketch2.addConstraint(Sketcher.Constraint("Equal", 47, 48))
sketch2.addConstraint(Sketcher.Constraint("Equal", 48, 57))
sketch2.addConstraint(Sketcher.Constraint("Horizontal", 4, 3, 13, 3))
sketch2.addConstraint(Sketcher.Constraint("Horizontal", 26, 3, 31, 3))
sketch2.addConstraint(Sketcher.Constraint("Horizontal", 13, 3, 32, 3))
sketch2.addConstraint(Sketcher.Constraint("Horizontal", 32, 3, 33, 3))
sketch2.addConstraint(Sketcher.Constraint("Horizontal", 33, 3, 38, 3))
sketch2.addConstraint(Sketcher.Constraint("Horizontal", 31, 3, 47, 3))
sketch2.addConstraint(Sketcher.Constraint("Horizontal", 47, 3, 48, 3))
sketch2.addConstraint(Sketcher.Constraint("Horizontal", 48, 3, 57, 3))
sketch2.addConstraint(Sketcher.Constraint("Horizontal", 6, 2, 9, 2))
sketch2.addConstraint(Sketcher.Constraint("Horizontal", 8, 2, 11, 2))
sketch2.addConstraint(Sketcher.Constraint("Horizontal", 10, 2, 14, 2))
sketch2.addConstraint(Sketcher.Constraint("Horizontal", 12, 2, 15, 2))
sketch2.addConstraint(Sketcher.Constraint("Horizontal", 21, 2, 22, 2))
sketch2.addConstraint(Sketcher.Constraint("Horizontal", 20, 2, 23, 2))
sketch2.addConstraint(Sketcher.Constraint("Horizontal", 25, 2, 27, 2))
sketch2.addConstraint(Sketcher.Constraint("Horizontal", 24, 2, 28, 2))
sketch2.addConstraint(Sketcher.Constraint("Horizontal", 17, 2, 34, 2))
sketch2.addConstraint(Sketcher.Constraint("Horizontal", 16, 2, 35, 2))
sketch2.addConstraint(Sketcher.Constraint("Horizontal", 37, 2, 39, 2))
sketch2.addConstraint(Sketcher.Constraint("Horizontal", 36, 2, 40, 2))
sketch2.addConstraint(Sketcher.Constraint("Horizontal", 30, 2, 43, 2))
sketch2.addConstraint(Sketcher.Constraint("Horizontal", 29, 2, 44, 2))
sketch2.addConstraint(Sketcher.Constraint("Horizontal", 46, 2, 49, 2))
sketch2.addConstraint(Sketcher.Constraint("Horizontal", 45, 2, 50, 2))
sketch2.addConstraint(Sketcher.Constraint("Horizontal", 42, 2, 53, 2))
sketch2.addConstraint(Sketcher.Constraint("Horizontal", 51, 2, 55, 2))
sketch2.addConstraint(Sketcher.Constraint("Vertical", 4, 3, 26, 3))
sketch2.addConstraint(Sketcher.Constraint("Vertical", 13, 3, 31, 3))
sketch2.addConstraint(Sketcher.Constraint("Vertical", 32, 3, 47, 3))
sketch2.addConstraint(Sketcher.Constraint("Vertical", 33, 3, 48, 3))
sketch2.addConstraint(Sketcher.Constraint("Vertical", 38, 3, 57, 3))
sketch2.addConstraint(Sketcher.Constraint("Vertical", 7, 2, 18, 2))
sketch2.addConstraint(Sketcher.Constraint("Vertical", 8, 2, 20, 2))
sketch2.addConstraint(Sketcher.Constraint("Vertical", 11, 2, 22, 2))
sketch2.addConstraint(Sketcher.Constraint("Vertical", 12, 2, 24, 2))
sketch2.addConstraint(Sketcher.Constraint("Vertical", 15, 2, 27, 2))
sketch2.addConstraint(Sketcher.Constraint("Vertical", 17, 2, 29, 2))
sketch2.addConstraint(Sketcher.Constraint("Vertical", 35, 2, 43, 2))
sketch2.addConstraint(Sketcher.Constraint("Vertical", 37, 2, 45, 2))
sketch2.addConstraint(Sketcher.Constraint("Vertical", 40, 2, 49, 2))
sketch2.addConstraint(Sketcher.Constraint("Vertical", 42, 2, 51, 2))
sketch2.addConstraint(Sketcher.Constraint("Equal", 12, 14))
sketch2.addConstraint(Sketcher.Constraint("Equal", 29, 34))
sketch2.addConstraint(Sketcher.Constraint("Equal", 36, 39))
sketch2.addConstraint(Sketcher.Constraint("Equal", 20, 54))
sketch2.addConstraint(Sketcher.Constraint("Equal", 17, 19))
sketch2.addConstraint(Sketcher.Constraint("DistanceX", 6, 1, 6, 2, 19.0))
sketch2.addConstraint(Sketcher.Constraint("DistanceX", 10, 1, 10, 2, 44.0))
sketch2.addConstraint(Sketcher.Constraint("DistanceY", 1, 2, 1, 1, 178.0))
sketch2.addConstraint(Sketcher.Constraint("DistanceY", 5, 2, 5, 1, 69.0))
sketch2.addConstraint(Sketcher.Constraint("DistanceY", 53, 2, 53, 1, 144.0))
sketch2.addConstraint(Sketcher.Constraint("Diameter", 4, 6.0))
sketch2.addConstraint(Sketcher.Constraint("DistanceX", 4, 3, 13, 3, 50.0))
sketch2.addConstraint(Sketcher.Constraint("DistanceY", 4, 3, 26, 3, 158.0))
sketch2.addConstraint(Sketcher.Constraint("DistanceX", 13, 3, 32, 3, 50.0))
sketch2.addConstraint(Sketcher.Constraint("DistanceX", 32, 3, 33, 3, 50.0))
sketch2.addConstraint(Sketcher.Constraint("DistanceX", 33, 3, 38, 3, 50.0))
sketch2.addConstraint(Sketcher.Constraint("DistanceX", 10, 2, 14, 2, 50.0))
sketch2.addConstraint(Sketcher.Constraint("DistanceX", 14, 2, 34, 2, 50.0))
sketch2.addConstraint(Sketcher.Constraint("DistanceX", 34, 2, 39, 2, 50.0))
sketch2.addConstraint(Sketcher.Constraint("DistanceX", 0, 1, 0, 2, 254.0))
sketch2.addConstraint(Sketcher.Constraint("DistanceX", -1, 1, 4, 3, 27.0))
sketch2.addConstraint(Sketcher.Constraint("DistanceY", 4, 3, -1, 1, 168.0))
sketch2.addConstraint(Sketcher.Constraint("DistanceX", -1, 1, 5, 2, 5.0))
sketch2.addConstraint(Sketcher.Constraint("DistanceY", 5, 2, -1, 1, 161.0))
sketch2.addConstraint(Sketcher.Constraint("DistanceX", -1, 1, 53, 2, 230.0))
sketch2.addConstraint(Sketcher.Constraint("DistanceX", -1, 1, 9, 2, 30.0755))
pad2 = doc.addObject("PartDesign::Pad", "Pad001")
body.addObject(pad2)
pad2.Profile = sketch2
pad2.Length = 5
pad2.Reversed = True

doc.recompute()
